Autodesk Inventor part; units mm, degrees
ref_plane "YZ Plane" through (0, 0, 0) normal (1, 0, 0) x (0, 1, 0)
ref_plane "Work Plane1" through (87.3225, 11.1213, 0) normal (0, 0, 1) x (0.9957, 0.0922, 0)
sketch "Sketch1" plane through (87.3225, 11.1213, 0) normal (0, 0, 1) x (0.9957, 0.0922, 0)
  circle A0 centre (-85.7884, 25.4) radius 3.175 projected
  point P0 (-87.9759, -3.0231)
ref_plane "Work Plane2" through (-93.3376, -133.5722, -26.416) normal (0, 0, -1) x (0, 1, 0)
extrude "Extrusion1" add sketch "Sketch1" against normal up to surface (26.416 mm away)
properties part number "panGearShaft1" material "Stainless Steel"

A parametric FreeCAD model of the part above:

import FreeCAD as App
import Part
import Sketcher
from FreeCAD import Vector
Q = App.Units.Quantity

doc = App.newDocument("Part")
body = doc.addObject("PartDesign::Body", "Body")

# Sketch on XY plane
sketch1 = body.newObject("Sketcher::SketchObject", "Sketch")
sketch1.AttachmentSupport = (doc.getObject("XY_Plane"), [""])
sketch1.MapMode = "FlatFace"
sketch1.addGeometry(Part.Circle(Vector(-0.44243, 28.503091, 0), Vector(0, 0, 1), 3.175), False)
sketch1.addConstraint([
    Sketcher.Constraint("Diameter", 0, Q("0.25 in")),
    Sketcher.Constraint("DistanceX", 0, 3, -1, 1, Q("0.4424 mm")),
    Sketcher.Constraint("DistanceY", -1, 1, 0, 3, Q("28.503 mm")),
])
pad1 = body.newObject("PartDesign::Pad", "Pad")
pad1.Profile = sketch1
pad1.Length = Q("1.04 in")
pad1.Reversed = True

doc.recompute()
